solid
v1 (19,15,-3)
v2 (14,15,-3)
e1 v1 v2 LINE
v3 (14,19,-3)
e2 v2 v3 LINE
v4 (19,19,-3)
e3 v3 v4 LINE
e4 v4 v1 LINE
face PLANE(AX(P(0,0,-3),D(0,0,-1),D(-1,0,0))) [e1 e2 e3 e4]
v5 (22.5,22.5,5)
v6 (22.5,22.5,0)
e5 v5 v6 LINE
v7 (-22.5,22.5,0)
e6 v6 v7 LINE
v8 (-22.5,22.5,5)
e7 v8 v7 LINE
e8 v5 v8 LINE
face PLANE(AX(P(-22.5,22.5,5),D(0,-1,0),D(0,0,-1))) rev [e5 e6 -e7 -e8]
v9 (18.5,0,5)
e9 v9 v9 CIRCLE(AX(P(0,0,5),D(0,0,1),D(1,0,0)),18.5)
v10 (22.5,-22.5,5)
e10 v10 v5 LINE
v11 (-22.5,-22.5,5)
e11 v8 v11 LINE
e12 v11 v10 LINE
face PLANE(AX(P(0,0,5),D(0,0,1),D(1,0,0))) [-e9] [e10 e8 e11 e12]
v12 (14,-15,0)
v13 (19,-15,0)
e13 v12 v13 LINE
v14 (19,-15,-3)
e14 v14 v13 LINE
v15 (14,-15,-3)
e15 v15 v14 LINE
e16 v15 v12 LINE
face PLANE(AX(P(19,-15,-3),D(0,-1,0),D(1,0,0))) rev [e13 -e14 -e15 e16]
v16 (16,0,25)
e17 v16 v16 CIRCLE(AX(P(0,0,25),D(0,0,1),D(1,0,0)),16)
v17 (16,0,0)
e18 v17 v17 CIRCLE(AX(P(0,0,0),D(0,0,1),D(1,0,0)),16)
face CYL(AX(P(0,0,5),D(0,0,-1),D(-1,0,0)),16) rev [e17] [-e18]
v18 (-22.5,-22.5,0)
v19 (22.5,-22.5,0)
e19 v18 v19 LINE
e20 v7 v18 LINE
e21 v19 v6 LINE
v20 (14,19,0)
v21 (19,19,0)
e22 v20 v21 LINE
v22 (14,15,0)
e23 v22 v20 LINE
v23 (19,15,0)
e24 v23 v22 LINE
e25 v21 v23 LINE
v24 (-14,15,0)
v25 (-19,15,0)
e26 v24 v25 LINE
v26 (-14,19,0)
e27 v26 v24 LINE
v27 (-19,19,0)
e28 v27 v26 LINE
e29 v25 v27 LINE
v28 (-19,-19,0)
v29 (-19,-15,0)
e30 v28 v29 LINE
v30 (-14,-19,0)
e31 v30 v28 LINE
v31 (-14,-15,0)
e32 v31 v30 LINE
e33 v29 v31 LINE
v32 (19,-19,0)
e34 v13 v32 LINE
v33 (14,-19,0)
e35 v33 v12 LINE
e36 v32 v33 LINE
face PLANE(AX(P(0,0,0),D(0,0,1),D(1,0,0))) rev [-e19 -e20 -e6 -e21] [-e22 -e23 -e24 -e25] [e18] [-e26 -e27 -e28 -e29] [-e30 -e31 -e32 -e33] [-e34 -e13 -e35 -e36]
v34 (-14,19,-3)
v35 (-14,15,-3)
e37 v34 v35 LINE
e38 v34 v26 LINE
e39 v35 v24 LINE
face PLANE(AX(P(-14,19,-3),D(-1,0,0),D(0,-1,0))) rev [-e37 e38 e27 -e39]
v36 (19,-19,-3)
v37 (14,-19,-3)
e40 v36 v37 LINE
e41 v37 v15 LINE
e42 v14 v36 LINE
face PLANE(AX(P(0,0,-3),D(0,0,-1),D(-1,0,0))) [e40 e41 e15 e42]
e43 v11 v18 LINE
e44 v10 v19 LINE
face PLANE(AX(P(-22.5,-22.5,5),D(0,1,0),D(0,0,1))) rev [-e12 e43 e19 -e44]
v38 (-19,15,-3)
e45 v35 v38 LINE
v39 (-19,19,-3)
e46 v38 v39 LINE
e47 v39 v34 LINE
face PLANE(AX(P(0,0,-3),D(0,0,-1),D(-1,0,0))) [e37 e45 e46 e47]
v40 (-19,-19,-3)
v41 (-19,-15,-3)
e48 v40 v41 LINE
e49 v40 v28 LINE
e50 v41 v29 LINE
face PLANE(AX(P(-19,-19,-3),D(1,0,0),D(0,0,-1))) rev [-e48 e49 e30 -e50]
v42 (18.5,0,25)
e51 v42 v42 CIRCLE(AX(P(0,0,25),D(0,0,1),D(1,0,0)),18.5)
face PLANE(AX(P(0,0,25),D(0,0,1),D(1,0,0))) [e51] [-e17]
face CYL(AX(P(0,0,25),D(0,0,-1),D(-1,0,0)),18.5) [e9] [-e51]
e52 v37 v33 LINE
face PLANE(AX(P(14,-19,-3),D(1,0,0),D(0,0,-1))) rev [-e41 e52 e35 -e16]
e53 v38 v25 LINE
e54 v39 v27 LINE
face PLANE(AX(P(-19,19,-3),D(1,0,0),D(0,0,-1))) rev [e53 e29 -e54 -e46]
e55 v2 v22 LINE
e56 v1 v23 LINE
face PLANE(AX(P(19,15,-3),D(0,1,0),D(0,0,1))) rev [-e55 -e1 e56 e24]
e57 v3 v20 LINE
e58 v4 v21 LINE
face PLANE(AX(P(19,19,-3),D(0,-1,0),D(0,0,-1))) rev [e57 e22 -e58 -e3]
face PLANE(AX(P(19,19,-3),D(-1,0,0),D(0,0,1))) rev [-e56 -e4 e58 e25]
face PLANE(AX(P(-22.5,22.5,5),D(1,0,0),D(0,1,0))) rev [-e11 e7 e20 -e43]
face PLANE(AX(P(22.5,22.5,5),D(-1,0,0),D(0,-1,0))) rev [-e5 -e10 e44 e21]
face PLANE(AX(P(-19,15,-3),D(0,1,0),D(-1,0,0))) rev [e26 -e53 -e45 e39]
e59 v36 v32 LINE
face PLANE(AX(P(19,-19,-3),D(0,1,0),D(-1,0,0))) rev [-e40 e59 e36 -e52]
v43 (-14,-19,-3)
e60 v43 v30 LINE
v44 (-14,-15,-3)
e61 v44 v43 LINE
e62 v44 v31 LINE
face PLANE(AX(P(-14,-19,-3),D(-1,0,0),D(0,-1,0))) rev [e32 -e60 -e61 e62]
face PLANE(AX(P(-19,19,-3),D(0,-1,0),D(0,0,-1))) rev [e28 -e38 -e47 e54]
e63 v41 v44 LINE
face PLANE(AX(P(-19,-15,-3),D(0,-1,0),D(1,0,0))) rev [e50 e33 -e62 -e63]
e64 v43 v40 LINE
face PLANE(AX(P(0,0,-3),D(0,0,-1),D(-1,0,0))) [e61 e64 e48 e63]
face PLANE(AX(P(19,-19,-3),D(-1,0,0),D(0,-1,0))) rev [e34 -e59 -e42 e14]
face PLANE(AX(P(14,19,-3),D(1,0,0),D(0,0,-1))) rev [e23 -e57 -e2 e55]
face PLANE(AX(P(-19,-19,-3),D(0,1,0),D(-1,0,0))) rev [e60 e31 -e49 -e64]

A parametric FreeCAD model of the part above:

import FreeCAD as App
import Part
import Sketcher
from FreeCAD import Vector


def add_polygon(sketch, points):
    """Adds a closed chain of lines whose ends are joined by coincident constraints."""
    first, n = sketch.GeometryCount, len(points)
    for a, b in zip(points, points[1:] + points[:1]):
        sketch.addGeometry(Part.LineSegment(App.Vector(*a, 0), App.Vector(*b, 0)), False)
    for i in range(n):
        sketch.addConstraint(Sketcher.Constraint("Coincident", first + i, 2, first + (i + 1) % n, 1))

doc = App.newDocument("Part")
body = doc.addObject("PartDesign::Body", "Body")

sketch1 = body.newObject("Sketcher::SketchObject", "Sketch")
sketch1.AttachmentSupport = (doc.getObject("XY_Plane"), [""])
sketch1.MapMode = "FlatFace"
add_polygon(sketch1, [(-22, 22), (-22, -22), (22, -22), (22, 22)])
sketch1.addGeometry(Part.Circle(Vector(0, 0, 0), Vector(0, 0, 1), 16), False)
sketch1.addConstraint([
    Sketcher.Constraint("Vertical", 0),
    Sketcher.Constraint("Horizontal", 1),
    Sketcher.Constraint("Vertical", 2),
    Sketcher.Constraint("Horizontal", 3),
    Sketcher.Constraint("Coincident", 4, 3, -1, 1),
    Sketcher.Constraint("Symmetric", 0, 2, 2, 2, -1, 1),
    Sketcher.Constraint("Equal", 3, 0),
    Sketcher.Constraint("Diameter", 4, 32.0),
    Sketcher.Constraint("DistanceX", 1, 1, 1, 2, 45.0),
])
pad1 = body.newObject("PartDesign::Pad", "Pad")
pad1.Profile = sketch1
pad1.Length = 5

sketch2 = body.newObject("Sketcher::SketchObject", "Sketch001")
sketch2.AttachmentSupport = (doc.getObject("XY_Plane"), [""])
sketch2.MapMode = "FlatFace"
sketch2.AttachmentOffset = App.Placement(Vector(0, 0, 5), App.Rotation())
sketch2.addGeometry([
    Part.Circle(Vector(0, 0, 0), Vector(0, 0, 1), 18),
    Part.Circle(Vector(0, 0, 0), Vector(0, 0, 1), 16),
], False)
sketch2.addConstraint([
    Sketcher.Constraint("Coincident", 0, 3, -1, 1),
    Sketcher.Constraint("Coincident", 1, 3, -1, 1),
    Sketcher.Constraint("Diameter", 0, 37.0),
    Sketcher.Constraint("Diameter", 1, 32.0),
])
pad2 = body.newObject("PartDesign::Pad", "Pad001")
pad2.Profile = sketch2
pad2.Length = 20

sketch3 = body.newObject("Sketcher::SketchObject", "Sketch002")
sketch3.AttachmentSupport = (doc.getObject("XY_Plane"), [""])
sketch3.MapMode = "FlatFace"
add_polygon(sketch3, [(-14, 19), (-14, 15), (-19, 15), (-19, 19)])
add_polygon(sketch3, [(19, 19), (19, 15), (14, 15), (14, 19)])
add_polygon(sketch3, [(19, -15), (19, -19), (14, -19), (14, -15)])
add_polygon(sketch3, [(-14, -15), (-14, -19), (-19, -19), (-19, -15)])
sketch3.addConstraint([
    Sketcher.Constraint("Vertical", 0),
    Sketcher.Constraint("Horizontal", 1),
    Sketcher.Constraint("Vertical", 2),
    Sketcher.Constraint("Horizontal", 3),
    Sketcher.Constraint("Vertical", 4),
    Sketcher.Constraint("Horizontal", 5),
    Sketcher.Constraint("Vertical", 6),
    Sketcher.Constraint("Horizontal", 7),
    Sketcher.Constraint("Vertical", 8),
    Sketcher.Constraint("Horizontal", 9),
    Sketcher.Constraint("Vertical", 10),
    Sketcher.Constraint("Horizontal", 11),
    Sketcher.Constraint("Vertical", 12),
    Sketcher.Constraint("Horizontal", 13),
    Sketcher.Constraint("Vertical", 14),
    Sketcher.Constraint("Horizontal", 15),
    Sketcher.Constraint("Symmetric", 2, 2, 8, 2, -1, 1),
    Sketcher.Constraint("Symmetric", 0, 2, 10, 2, -1, 1),
    Sketcher.Constraint("Symmetric", 6, 2, 12, 2, -1, 1),
    Sketcher.Constraint("Symmetric", 4, 2, 14, 2, -1, 1),
    Sketcher.Constraint("Symmetric", 1, 2, 4, 2, -2),
    Sketcher.Constraint("Symmetric", 3, 2, 6, 2, -2),
    Sketcher.Constraint("DistanceX", 1, 2, 1, 1, 5.0),
    Sketcher.Constraint("DistanceY", 0, 2, 0, 1, 4.0),
    Sketcher.Constraint("DistanceX", 0, 2, -1, 1, 14.0),
    Sketcher.Constraint("DistanceY", -1, 1, 0, 2, 15.0),
])
pad3 = body.newObject("PartDesign::Pad", "Pad002")
pad3.Profile = sketch3
pad3.Length = 3
pad3.Reversed = True

doc.recompute()
